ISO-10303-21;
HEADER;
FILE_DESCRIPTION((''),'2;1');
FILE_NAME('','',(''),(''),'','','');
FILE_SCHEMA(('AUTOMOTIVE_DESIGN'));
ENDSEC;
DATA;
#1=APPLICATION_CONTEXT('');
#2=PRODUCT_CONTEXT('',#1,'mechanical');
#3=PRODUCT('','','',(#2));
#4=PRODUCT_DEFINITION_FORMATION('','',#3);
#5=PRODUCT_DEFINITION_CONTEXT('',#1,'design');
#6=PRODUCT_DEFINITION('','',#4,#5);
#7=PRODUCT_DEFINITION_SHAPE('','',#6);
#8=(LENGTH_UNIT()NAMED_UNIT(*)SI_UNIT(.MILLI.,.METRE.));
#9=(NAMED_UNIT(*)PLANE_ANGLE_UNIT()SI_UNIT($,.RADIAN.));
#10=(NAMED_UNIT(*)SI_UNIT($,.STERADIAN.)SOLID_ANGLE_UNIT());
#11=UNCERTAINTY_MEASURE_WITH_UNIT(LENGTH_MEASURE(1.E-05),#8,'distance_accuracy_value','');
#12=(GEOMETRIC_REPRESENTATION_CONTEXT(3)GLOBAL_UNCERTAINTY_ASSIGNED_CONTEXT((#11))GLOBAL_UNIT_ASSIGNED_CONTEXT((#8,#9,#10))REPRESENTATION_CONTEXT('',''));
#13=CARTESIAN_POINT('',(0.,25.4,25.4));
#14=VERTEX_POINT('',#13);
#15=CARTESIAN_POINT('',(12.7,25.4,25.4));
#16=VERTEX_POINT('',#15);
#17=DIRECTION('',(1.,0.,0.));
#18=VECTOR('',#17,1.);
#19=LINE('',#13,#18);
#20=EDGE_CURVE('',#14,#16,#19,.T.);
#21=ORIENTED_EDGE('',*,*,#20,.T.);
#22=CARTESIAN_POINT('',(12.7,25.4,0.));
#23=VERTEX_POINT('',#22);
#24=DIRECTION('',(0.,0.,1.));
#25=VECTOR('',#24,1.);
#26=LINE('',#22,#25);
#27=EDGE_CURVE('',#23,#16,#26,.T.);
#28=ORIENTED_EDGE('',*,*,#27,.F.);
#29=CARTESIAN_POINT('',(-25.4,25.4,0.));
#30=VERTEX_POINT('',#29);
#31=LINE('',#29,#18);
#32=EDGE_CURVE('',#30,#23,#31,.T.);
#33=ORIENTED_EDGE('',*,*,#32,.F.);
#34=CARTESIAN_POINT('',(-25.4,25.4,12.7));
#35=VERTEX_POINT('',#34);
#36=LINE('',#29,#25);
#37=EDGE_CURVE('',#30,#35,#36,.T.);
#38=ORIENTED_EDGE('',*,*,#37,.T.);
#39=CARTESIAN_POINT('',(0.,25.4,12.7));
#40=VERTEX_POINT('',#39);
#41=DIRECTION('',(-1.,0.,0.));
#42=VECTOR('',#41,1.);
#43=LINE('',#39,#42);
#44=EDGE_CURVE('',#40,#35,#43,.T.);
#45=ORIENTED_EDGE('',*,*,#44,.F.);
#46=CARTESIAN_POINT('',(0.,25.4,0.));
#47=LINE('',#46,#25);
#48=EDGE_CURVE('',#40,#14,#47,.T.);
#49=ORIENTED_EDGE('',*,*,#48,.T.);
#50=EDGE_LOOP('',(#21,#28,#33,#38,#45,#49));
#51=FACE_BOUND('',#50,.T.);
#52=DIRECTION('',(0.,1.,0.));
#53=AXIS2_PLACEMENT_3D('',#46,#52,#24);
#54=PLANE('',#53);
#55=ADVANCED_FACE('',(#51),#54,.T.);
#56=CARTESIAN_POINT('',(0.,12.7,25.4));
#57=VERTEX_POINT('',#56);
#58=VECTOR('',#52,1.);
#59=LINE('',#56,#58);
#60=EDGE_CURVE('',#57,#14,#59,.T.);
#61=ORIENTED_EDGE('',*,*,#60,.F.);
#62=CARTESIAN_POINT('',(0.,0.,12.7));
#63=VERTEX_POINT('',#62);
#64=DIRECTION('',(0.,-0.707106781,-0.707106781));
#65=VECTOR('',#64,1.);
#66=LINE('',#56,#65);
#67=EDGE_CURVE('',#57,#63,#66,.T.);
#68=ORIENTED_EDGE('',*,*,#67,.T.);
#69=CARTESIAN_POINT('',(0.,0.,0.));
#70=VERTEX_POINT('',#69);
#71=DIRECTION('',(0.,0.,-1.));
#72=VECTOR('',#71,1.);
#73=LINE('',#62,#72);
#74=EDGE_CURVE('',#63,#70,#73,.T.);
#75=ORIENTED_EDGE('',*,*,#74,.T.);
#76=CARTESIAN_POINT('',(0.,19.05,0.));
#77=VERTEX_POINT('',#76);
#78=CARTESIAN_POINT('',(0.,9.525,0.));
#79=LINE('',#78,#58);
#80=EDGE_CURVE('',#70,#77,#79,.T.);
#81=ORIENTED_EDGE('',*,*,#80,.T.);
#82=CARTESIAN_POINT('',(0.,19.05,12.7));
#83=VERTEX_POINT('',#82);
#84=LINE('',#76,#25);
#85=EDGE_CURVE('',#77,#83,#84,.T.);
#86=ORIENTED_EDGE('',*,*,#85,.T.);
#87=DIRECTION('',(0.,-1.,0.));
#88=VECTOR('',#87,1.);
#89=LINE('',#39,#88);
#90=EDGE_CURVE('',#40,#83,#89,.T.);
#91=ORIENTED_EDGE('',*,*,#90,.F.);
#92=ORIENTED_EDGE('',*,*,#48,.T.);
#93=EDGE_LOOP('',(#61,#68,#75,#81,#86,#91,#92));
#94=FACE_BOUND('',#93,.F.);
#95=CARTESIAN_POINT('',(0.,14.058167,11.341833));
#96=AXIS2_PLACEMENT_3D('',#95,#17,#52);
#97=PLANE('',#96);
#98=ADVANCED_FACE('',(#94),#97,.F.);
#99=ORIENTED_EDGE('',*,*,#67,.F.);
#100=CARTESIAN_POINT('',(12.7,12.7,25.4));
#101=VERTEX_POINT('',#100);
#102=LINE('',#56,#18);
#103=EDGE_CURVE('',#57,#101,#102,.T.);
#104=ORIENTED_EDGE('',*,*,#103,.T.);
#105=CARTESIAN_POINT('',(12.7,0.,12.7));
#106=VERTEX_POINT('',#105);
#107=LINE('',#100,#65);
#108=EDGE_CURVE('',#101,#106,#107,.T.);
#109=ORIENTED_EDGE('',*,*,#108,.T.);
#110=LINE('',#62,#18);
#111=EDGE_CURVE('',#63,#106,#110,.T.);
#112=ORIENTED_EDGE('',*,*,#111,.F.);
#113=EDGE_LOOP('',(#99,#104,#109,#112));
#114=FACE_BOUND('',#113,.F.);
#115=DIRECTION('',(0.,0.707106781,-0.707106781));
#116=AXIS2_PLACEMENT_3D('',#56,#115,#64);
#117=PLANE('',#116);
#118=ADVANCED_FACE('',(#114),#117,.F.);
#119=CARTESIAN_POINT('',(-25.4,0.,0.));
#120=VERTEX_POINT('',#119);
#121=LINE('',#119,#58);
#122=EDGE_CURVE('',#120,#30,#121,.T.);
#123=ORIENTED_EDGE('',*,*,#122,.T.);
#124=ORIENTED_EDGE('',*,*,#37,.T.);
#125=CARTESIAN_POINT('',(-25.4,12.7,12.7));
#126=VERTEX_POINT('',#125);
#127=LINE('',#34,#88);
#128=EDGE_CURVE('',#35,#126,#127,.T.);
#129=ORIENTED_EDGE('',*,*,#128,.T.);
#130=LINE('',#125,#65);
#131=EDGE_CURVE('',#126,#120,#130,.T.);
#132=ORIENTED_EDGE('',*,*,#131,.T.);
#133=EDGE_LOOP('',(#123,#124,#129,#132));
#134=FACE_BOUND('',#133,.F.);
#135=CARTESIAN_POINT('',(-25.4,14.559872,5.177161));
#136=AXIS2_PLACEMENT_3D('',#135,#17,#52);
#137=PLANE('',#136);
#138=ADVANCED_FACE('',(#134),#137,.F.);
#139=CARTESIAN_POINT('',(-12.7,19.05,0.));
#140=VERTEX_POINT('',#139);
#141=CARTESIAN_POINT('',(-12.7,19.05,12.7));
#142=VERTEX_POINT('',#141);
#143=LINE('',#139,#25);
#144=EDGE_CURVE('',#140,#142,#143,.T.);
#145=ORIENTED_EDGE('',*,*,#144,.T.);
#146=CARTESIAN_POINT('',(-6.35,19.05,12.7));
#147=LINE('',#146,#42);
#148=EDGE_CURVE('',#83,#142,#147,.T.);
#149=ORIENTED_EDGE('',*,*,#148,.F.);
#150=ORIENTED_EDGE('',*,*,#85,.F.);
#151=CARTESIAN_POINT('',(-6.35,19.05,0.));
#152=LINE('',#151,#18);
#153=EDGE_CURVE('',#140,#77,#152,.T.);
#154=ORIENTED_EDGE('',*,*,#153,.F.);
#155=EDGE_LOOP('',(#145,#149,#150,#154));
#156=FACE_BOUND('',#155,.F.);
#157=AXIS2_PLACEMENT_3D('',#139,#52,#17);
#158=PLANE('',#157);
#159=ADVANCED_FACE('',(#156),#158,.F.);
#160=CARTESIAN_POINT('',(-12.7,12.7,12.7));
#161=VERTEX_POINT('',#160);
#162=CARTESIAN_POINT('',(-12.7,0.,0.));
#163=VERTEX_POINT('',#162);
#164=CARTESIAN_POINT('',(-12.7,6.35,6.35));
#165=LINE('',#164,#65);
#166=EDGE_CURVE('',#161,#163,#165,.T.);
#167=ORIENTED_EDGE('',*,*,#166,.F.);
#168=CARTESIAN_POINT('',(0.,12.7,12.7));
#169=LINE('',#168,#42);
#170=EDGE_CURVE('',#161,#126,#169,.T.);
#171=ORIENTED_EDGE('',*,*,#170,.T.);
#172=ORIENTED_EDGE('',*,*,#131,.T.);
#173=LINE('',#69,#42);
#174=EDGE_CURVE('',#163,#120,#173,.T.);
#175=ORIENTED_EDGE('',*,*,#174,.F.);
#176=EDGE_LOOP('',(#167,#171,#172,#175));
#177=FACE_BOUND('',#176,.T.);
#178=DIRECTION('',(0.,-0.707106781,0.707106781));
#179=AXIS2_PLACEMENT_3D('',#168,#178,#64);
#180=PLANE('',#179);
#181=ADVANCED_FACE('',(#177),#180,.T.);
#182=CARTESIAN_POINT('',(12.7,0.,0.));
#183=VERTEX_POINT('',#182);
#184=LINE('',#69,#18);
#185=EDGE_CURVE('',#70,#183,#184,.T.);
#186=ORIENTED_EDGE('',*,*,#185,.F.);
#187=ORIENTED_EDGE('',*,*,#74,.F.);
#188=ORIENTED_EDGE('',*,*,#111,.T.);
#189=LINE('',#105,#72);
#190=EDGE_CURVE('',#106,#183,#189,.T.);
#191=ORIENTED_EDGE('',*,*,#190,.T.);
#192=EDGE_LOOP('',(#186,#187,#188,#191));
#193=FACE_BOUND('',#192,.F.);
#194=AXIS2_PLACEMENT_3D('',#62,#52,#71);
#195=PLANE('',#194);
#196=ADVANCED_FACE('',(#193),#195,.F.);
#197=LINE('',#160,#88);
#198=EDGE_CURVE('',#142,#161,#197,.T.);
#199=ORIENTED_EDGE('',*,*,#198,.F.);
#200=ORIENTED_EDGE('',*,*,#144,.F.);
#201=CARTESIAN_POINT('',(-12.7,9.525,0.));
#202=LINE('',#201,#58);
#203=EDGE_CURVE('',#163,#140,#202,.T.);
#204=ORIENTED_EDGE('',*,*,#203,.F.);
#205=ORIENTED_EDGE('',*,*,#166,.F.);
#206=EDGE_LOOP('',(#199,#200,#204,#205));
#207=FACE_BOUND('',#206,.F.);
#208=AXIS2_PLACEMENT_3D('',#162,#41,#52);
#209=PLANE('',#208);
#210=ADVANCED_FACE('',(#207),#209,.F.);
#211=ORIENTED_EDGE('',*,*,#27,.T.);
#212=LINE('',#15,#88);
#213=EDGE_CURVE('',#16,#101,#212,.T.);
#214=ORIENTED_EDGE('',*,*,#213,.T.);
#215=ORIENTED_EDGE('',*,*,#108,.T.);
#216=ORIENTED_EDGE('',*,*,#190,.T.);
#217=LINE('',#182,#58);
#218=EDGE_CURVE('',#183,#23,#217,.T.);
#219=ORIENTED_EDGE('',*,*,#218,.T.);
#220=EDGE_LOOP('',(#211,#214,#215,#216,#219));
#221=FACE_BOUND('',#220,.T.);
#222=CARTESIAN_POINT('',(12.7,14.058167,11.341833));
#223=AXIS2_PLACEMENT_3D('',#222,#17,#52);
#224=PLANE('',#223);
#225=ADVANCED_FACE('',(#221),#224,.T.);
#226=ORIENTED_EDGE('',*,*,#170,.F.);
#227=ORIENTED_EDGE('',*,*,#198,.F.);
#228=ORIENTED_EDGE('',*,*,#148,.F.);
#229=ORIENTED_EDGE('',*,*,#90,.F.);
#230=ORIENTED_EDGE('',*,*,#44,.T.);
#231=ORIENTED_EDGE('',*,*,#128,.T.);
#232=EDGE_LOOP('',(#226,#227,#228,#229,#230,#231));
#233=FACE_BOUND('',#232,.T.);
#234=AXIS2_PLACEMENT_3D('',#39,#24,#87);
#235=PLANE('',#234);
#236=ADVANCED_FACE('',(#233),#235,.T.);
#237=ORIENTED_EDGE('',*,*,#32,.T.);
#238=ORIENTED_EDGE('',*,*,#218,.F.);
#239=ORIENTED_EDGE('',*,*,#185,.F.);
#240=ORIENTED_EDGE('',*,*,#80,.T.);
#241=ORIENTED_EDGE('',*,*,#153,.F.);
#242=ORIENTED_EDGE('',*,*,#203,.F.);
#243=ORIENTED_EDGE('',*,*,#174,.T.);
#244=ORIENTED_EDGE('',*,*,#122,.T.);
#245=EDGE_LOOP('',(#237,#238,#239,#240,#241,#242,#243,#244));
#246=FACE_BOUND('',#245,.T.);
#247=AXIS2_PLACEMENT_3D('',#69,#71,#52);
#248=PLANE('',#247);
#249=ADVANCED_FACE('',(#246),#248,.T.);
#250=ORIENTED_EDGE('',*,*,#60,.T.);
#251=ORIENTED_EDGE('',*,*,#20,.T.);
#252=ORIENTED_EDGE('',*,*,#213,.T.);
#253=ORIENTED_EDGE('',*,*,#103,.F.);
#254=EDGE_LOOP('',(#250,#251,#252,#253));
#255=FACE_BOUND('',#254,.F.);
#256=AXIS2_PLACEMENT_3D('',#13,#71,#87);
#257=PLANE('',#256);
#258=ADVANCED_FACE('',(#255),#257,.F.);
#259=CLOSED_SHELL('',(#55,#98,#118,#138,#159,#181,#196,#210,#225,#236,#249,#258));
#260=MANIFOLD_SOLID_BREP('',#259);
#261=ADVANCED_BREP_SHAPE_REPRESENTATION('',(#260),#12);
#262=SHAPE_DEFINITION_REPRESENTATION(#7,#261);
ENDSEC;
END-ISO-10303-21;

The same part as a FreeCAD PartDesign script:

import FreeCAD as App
import Part
import Sketcher

V = App.Vector
Q = App.Units.Quantity


def add_polygon(sketch, points):
    """Adds a closed chain of lines whose ends are joined by coincident constraints."""
    first, n = sketch.GeometryCount, len(points)
    for a, b in zip(points, points[1:] + points[:1]):
        sketch.addGeometry(Part.LineSegment(App.Vector(*a, 0), App.Vector(*b, 0)), False)
    for i in range(n):
        sketch.addConstraint(Sketcher.Constraint("Coincident", first + i, 2, first + (i + 1) % n, 1))

doc = App.newDocument("Part")
body = doc.addObject("PartDesign::Body", "Body")

# Sketch on YZ plane
sketch1 = body.newObject("Sketcher::SketchObject", "Sketch")
sketch1.AttachmentSupport = (doc.getObject("YZ_Plane"), [""])
sketch1.MapMode = "FlatFace"
add_polygon(sketch1, [(0, 13), (0, 0), (25, 0), (25, 25), (13, 25)])  # lines 0-4
sketch1.addConstraint(Sketcher.Constraint("Vertical", 0))
sketch1.addConstraint(Sketcher.Constraint("Horizontal", 1))
sketch1.addConstraint(Sketcher.Constraint("Vertical", 2))
sketch1.addConstraint(Sketcher.Constraint("Horizontal", 3))
sketch1.addConstraint(Sketcher.Constraint("Coincident", 0, 2, -1, 1))
sketch1.addConstraint(Sketcher.Constraint("Equal", 3, 0))
sketch1.addConstraint(Sketcher.Constraint("Equal", 1, 2))
sketch1.addConstraint(Sketcher.Constraint("DistanceX", 1, 1, 1, 2, Q("1 in")))
sketch1.addConstraint(Sketcher.Constraint("DistanceX", 3, 2, 3, 1, Q("0.5 in")))
pad1 = body.newObject("PartDesign::Pad", "Pad")
pad1.Profile = sketch1
pad1.Length = Q("0.5 in")

# Sketch on YZ plane
sketch2 = body.newObject("Sketcher::SketchObject", "Sketch001")
sketch2.AttachmentSupport = (doc.getObject("YZ_Plane"), [""])
sketch2.MapMode = "FlatFace"
add_polygon(sketch2, [(13, 13), (0, 0), (25, 0), (25, 13)])  # lines 0-3
sketch2.addConstraint(Sketcher.Constraint("Horizontal", 1))
sketch2.addConstraint(Sketcher.Constraint("Vertical", 2))
sketch2.addConstraint(Sketcher.Constraint("Horizontal", 3))
sketch2.addConstraint(Sketcher.Constraint("Coincident", 0, 2, -1, 1))
sketch2.addConstraint(Sketcher.Constraint("Equal", 3, 2))
sketch2.addConstraint(Sketcher.Constraint("DistanceX", 1, 1, 1, 2, Q("1 in")))
sketch2.addConstraint(Sketcher.Constraint("DistanceX", 3, 2, 3, 1, Q("0.5 in")))
pad2 = body.newObject("PartDesign::Pad", "Pad001")
pad2.Profile = sketch2
pad2.Length = Q("1 in")
pad2.Reversed = True

# Sketch on XY plane
sketch3 = body.newObject("Sketcher::SketchObject", "Sketch002")
sketch3.AttachmentSupport = (doc.getObject("XY_Plane"), [""])
sketch3.MapMode = "FlatFace"
add_polygon(sketch3, [(-13, 19), (-13, 0), (0, 0), (0, 19)])  # lines 0-3
sketch3.addConstraint(Sketcher.Constraint("Vertical", 0))
sketch3.addConstraint(Sketcher.Constraint("Horizontal", 1))
sketch3.addConstraint(Sketcher.Constraint("Vertical", 2))
sketch3.addConstraint(Sketcher.Constraint("Horizontal", 3))
sketch3.addConstraint(Sketcher.Constraint("Coincident", 1, 2, -1, 1))
sketch3.addConstraint(Sketcher.Constraint("DistanceX", 1, 1, 1, 2, Q("0.5 in")))
sketch3.addConstraint(Sketcher.Constraint("DistanceY", 0, 2, 0, 1, Q("0.75 in")))
pocket1 = body.newObject("PartDesign::Pocket", "Pocket")
pocket1.Profile = sketch3
pocket1.Type = "ThroughAll"
pocket1.Reversed = True

doc.recompute()
